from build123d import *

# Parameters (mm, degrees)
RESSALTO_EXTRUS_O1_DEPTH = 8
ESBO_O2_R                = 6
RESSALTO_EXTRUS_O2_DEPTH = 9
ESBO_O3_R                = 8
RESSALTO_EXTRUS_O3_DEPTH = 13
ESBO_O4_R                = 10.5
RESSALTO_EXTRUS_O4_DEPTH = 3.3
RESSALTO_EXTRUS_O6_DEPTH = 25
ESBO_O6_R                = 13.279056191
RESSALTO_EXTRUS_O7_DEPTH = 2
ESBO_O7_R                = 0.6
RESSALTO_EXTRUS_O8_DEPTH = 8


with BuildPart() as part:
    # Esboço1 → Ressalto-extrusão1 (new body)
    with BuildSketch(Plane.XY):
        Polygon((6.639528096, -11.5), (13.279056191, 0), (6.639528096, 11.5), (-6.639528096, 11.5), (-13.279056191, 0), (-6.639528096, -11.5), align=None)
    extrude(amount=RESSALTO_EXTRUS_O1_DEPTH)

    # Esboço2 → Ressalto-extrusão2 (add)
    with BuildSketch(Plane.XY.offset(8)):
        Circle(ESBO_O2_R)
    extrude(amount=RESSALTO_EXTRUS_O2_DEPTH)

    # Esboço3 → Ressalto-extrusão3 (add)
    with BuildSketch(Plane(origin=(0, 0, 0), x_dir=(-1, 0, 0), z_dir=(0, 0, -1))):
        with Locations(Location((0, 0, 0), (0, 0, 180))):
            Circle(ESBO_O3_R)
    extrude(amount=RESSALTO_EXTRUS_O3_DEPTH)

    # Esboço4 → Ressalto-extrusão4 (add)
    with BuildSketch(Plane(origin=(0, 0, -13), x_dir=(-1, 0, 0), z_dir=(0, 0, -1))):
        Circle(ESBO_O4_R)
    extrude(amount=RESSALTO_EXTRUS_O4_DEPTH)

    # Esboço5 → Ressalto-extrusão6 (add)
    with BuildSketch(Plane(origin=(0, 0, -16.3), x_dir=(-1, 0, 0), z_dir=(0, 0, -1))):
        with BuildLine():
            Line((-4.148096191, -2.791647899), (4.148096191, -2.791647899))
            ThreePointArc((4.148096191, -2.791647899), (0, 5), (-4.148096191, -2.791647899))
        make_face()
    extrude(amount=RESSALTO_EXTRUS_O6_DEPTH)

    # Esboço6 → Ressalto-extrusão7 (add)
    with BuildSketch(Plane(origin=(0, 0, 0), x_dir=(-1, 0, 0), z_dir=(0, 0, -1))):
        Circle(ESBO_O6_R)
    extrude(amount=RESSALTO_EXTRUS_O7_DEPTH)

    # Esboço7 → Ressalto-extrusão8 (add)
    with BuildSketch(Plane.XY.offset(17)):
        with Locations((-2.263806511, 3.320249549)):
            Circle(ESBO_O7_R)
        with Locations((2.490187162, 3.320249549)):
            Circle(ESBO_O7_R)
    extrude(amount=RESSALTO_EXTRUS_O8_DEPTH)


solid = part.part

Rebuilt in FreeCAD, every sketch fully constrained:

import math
import FreeCAD as App
import Part
import Sketcher

V = App.Vector
Q = App.Units.Quantity

doc = App.newDocument("Part")
body = doc.addObject("PartDesign::Body", "Body")

sketch1 = doc.addObject("Sketcher::SketchObject", "Sketch")
body.addObject(sketch1)
sketch1.AttachmentSupport = (doc.XY_Plane, [""])
sketch1.MapMode = "FlatFace"
sketch1.addGeometry(Part.LineSegment(V(7, -12, 0), V(13, 0, 0)), False)
sketch1.addGeometry(Part.LineSegment(V(13, 0, 0), V(7, 12, 0)), False)
sketch1.addGeometry(Part.LineSegment(V(7, 12, 0), V(-7, 12, 0)), False)
sketch1.addGeometry(Part.LineSegment(V(-7, 12, 0), V(-13, 0, 0)), False)
sketch1.addGeometry(Part.LineSegment(V(-13, 0, 0), V(-7, -12, 0)), False)
sketch1.addGeometry(Part.LineSegment(V(-7, -12, 0), V(7, -12, 0)), False)
sketch1.addConstraint(Sketcher.Constraint("Coincident", 0, 2, 1, 1))
sketch1.addConstraint(Sketcher.Constraint("Coincident", 1, 2, 2, 1))
sketch1.addConstraint(Sketcher.Constraint("Coincident", 2, 2, 3, 1))
sketch1.addConstraint(Sketcher.Constraint("Coincident", 3, 2, 4, 1))
sketch1.addConstraint(Sketcher.Constraint("Coincident", 4, 2, 5, 1))
sketch1.addConstraint(Sketcher.Constraint("Coincident", 5, 2, 0, 1))
sketch1.addConstraint(Sketcher.Constraint("Horizontal", 2))
sketch1.addConstraint(Sketcher.Constraint("Horizontal", 5))
sketch1.addConstraint(Sketcher.Constraint("Symmetric", 0, 2, 3, 2, -1, 1))
sketch1.addConstraint(Sketcher.Constraint("Symmetric", 1, 2, 4, 2, -1, 1))
sketch1.addConstraint(Sketcher.Constraint("PointOnObject", 0, 2, -1))
sketch1.addConstraint(Sketcher.Constraint("Parallel", 0, 3))
sketch1.addConstraint(Sketcher.Constraint("Vertical", 2, 2, 4, 2))
sketch1.addConstraint(Sketcher.Constraint("Angle", 0, Q("60 deg")))
sketch1.addConstraint(Sketcher.Constraint("DistanceY", 4, 2, 2, 2, 23.0))
sketch1.addConstraint(Sketcher.Constraint("DistanceX", 2, 2, 2, 1, 13.279056))
pad1 = doc.addObject("PartDesign::Pad", "Pad")
body.addObject(pad1)
pad1.Profile = sketch1
pad1.Length = 8

sketch2 = doc.addObject("Sketcher::SketchObject", "Sketch001")
body.addObject(sketch2)
sketch2.AttachmentSupport = (doc.XY_Plane, [""])
sketch2.MapMode = "FlatFace"
sketch2.AttachmentOffset = App.Placement(V(0, 0, 8), App.Rotation())
sketch2.addGeometry(Part.Circle(V(0, 0, 0), V(0, 0, 1), 6), False)
sketch2.addConstraint(Sketcher.Constraint("Coincident", 0, 3, -1, 1))
sketch2.addConstraint(Sketcher.Constraint("Diameter", 0, 12.0))
pad2 = doc.addObject("PartDesign::Pad", "Pad001")
body.addObject(pad2)
pad2.Profile = sketch2
pad2.Length = 9

sketch3 = doc.addObject("Sketcher::SketchObject", "Sketch002")
body.addObject(sketch3)
sketch3.AttachmentSupport = (doc.XY_Plane, [""])
sketch3.MapMode = "FlatFace"
sketch3.addGeometry(Part.Circle(V(0, 0, 0), V(0, 0, 1), 8), False)
sketch3.addConstraint(Sketcher.Constraint("Coincident", 0, 3, -1, 1))
sketch3.addConstraint(Sketcher.Constraint("Diameter", 0, 16.0))
pad3 = doc.addObject("PartDesign::Pad", "Pad002")
body.addObject(pad3)
pad3.Profile = sketch3
pad3.Length = 13
pad3.Reversed = True

sketch4 = doc.addObject("Sketcher::SketchObject", "Sketch003")
body.addObject(sketch4)
sketch4.AttachmentSupport = (doc.XY_Plane, [""])
sketch4.MapMode = "FlatFace"
sketch4.AttachmentOffset = App.Placement(V(0, 0, -13), App.Rotation())
sketch4.addGeometry(Part.Circle(V(0, 0, 0), V(0, 0, 1), 10), False)
sketch4.addConstraint(Sketcher.Constraint("Coincident", 0, 3, -1, 1))
sketch4.addConstraint(Sketcher.Constraint("Diameter", 0, 21.0))
pad4 = doc.addObject("PartDesign::Pad", "Pad003")
body.addObject(pad4)
pad4.Profile = sketch4
pad4.Length = 3.3
pad4.Reversed = True

sketch5 = doc.addObject("Sketcher::SketchObject", "Sketch004")
body.addObject(sketch5)
sketch5.AttachmentSupport = (doc.XY_Plane, [""])
sketch5.MapMode = "FlatFace"
sketch5.AttachmentOffset = App.Placement(V(0, 0, -16.3), App.Rotation())
sketch5.addGeometry(Part.LineSegment(V(4, -3, 0), V(-4, -3, 0)), False)
sketch5.addGeometry(Part.ArcOfCircle(Part.Circle(V(0, 0, 0), V(0, 0, 1), 5), math.radians(-34), math.radians(214)), False)
sketch5.addConstraint(Sketcher.Constraint("Coincident", 0, 1, 1, 1))
sketch5.addConstraint(Sketcher.Constraint("Coincident", 1, 2, 0, 2))
sketch5.addConstraint(Sketcher.Constraint("Horizontal", 0))
sketch5.addConstraint(Sketcher.Constraint("Coincident", 1, 3, -1, 1))
sketch5.addConstraint(Sketcher.Constraint("Radius", 1, 5.0))
sketch5.addConstraint(Sketcher.Constraint("DistanceX", 0, 2, 0, 1, 8.296192))
pad5 = doc.addObject("PartDesign::Pad", "Pad004")
body.addObject(pad5)
pad5.Profile = sketch5
pad5.Length = 25
pad5.Reversed = True

sketch6 = doc.addObject("Sketcher::SketchObject", "Sketch005")
body.addObject(sketch6)
sketch6.AttachmentSupport = (doc.XY_Plane, [""])
sketch6.MapMode = "FlatFace"
sketch6.addGeometry(Part.Circle(V(0, 0, 0), V(0, 0, 1), 13), False)
sketch6.addConstraint(Sketcher.Constraint("Coincident", 0, 3, -1, 1))
sketch6.addConstraint(Sketcher.Constraint("Diameter", 0, 26.558112))
pad6 = doc.addObject("PartDesign::Pad", "Pad005")
body.addObject(pad6)
pad6.Profile = sketch6
pad6.Length = 2
pad6.Reversed = True

sketch7 = doc.addObject("Sketcher::SketchObject", "Sketch006")
body.addObject(sketch7)
sketch7.AttachmentSupport = (doc.XY_Plane, [""])
sketch7.MapMode = "FlatFace"
sketch7.AttachmentOffset = App.Placement(V(0, 0, 17), App.Rotation())
sketch7.addGeometry(Part.Circle(V(-2.3, 3.3, 0), V(0, 0, 1), 0.6), False)
sketch7.addGeometry(Part.Circle(V(2.5, 3.3, 0), V(0, 0, 1), 0.6), False)
sketch7.addConstraint(Sketcher.Constraint("Equal", 0, 1))
sketch7.addConstraint(Sketcher.Constraint("Horizontal", 0, 3, 1, 3))
sketch7.addConstraint(Sketcher.Constraint("Diameter", 0, 1.2))
sketch7.addConstraint(Sketcher.Constraint("DistanceY", -1, 1, 0, 3, 3.32025))
sketch7.addConstraint(Sketcher.Constraint("DistanceX", 0, 3, -1, 1, 2.263807))
sketch7.addConstraint(Sketcher.Constraint("DistanceX", -1, 1, 1, 3, 2.490187))
pad7 = doc.addObject("PartDesign::Pad", "Pad006")
body.addObject(pad7)
pad7.Profile = sketch7
pad7.Length = 8

doc.recompute()
